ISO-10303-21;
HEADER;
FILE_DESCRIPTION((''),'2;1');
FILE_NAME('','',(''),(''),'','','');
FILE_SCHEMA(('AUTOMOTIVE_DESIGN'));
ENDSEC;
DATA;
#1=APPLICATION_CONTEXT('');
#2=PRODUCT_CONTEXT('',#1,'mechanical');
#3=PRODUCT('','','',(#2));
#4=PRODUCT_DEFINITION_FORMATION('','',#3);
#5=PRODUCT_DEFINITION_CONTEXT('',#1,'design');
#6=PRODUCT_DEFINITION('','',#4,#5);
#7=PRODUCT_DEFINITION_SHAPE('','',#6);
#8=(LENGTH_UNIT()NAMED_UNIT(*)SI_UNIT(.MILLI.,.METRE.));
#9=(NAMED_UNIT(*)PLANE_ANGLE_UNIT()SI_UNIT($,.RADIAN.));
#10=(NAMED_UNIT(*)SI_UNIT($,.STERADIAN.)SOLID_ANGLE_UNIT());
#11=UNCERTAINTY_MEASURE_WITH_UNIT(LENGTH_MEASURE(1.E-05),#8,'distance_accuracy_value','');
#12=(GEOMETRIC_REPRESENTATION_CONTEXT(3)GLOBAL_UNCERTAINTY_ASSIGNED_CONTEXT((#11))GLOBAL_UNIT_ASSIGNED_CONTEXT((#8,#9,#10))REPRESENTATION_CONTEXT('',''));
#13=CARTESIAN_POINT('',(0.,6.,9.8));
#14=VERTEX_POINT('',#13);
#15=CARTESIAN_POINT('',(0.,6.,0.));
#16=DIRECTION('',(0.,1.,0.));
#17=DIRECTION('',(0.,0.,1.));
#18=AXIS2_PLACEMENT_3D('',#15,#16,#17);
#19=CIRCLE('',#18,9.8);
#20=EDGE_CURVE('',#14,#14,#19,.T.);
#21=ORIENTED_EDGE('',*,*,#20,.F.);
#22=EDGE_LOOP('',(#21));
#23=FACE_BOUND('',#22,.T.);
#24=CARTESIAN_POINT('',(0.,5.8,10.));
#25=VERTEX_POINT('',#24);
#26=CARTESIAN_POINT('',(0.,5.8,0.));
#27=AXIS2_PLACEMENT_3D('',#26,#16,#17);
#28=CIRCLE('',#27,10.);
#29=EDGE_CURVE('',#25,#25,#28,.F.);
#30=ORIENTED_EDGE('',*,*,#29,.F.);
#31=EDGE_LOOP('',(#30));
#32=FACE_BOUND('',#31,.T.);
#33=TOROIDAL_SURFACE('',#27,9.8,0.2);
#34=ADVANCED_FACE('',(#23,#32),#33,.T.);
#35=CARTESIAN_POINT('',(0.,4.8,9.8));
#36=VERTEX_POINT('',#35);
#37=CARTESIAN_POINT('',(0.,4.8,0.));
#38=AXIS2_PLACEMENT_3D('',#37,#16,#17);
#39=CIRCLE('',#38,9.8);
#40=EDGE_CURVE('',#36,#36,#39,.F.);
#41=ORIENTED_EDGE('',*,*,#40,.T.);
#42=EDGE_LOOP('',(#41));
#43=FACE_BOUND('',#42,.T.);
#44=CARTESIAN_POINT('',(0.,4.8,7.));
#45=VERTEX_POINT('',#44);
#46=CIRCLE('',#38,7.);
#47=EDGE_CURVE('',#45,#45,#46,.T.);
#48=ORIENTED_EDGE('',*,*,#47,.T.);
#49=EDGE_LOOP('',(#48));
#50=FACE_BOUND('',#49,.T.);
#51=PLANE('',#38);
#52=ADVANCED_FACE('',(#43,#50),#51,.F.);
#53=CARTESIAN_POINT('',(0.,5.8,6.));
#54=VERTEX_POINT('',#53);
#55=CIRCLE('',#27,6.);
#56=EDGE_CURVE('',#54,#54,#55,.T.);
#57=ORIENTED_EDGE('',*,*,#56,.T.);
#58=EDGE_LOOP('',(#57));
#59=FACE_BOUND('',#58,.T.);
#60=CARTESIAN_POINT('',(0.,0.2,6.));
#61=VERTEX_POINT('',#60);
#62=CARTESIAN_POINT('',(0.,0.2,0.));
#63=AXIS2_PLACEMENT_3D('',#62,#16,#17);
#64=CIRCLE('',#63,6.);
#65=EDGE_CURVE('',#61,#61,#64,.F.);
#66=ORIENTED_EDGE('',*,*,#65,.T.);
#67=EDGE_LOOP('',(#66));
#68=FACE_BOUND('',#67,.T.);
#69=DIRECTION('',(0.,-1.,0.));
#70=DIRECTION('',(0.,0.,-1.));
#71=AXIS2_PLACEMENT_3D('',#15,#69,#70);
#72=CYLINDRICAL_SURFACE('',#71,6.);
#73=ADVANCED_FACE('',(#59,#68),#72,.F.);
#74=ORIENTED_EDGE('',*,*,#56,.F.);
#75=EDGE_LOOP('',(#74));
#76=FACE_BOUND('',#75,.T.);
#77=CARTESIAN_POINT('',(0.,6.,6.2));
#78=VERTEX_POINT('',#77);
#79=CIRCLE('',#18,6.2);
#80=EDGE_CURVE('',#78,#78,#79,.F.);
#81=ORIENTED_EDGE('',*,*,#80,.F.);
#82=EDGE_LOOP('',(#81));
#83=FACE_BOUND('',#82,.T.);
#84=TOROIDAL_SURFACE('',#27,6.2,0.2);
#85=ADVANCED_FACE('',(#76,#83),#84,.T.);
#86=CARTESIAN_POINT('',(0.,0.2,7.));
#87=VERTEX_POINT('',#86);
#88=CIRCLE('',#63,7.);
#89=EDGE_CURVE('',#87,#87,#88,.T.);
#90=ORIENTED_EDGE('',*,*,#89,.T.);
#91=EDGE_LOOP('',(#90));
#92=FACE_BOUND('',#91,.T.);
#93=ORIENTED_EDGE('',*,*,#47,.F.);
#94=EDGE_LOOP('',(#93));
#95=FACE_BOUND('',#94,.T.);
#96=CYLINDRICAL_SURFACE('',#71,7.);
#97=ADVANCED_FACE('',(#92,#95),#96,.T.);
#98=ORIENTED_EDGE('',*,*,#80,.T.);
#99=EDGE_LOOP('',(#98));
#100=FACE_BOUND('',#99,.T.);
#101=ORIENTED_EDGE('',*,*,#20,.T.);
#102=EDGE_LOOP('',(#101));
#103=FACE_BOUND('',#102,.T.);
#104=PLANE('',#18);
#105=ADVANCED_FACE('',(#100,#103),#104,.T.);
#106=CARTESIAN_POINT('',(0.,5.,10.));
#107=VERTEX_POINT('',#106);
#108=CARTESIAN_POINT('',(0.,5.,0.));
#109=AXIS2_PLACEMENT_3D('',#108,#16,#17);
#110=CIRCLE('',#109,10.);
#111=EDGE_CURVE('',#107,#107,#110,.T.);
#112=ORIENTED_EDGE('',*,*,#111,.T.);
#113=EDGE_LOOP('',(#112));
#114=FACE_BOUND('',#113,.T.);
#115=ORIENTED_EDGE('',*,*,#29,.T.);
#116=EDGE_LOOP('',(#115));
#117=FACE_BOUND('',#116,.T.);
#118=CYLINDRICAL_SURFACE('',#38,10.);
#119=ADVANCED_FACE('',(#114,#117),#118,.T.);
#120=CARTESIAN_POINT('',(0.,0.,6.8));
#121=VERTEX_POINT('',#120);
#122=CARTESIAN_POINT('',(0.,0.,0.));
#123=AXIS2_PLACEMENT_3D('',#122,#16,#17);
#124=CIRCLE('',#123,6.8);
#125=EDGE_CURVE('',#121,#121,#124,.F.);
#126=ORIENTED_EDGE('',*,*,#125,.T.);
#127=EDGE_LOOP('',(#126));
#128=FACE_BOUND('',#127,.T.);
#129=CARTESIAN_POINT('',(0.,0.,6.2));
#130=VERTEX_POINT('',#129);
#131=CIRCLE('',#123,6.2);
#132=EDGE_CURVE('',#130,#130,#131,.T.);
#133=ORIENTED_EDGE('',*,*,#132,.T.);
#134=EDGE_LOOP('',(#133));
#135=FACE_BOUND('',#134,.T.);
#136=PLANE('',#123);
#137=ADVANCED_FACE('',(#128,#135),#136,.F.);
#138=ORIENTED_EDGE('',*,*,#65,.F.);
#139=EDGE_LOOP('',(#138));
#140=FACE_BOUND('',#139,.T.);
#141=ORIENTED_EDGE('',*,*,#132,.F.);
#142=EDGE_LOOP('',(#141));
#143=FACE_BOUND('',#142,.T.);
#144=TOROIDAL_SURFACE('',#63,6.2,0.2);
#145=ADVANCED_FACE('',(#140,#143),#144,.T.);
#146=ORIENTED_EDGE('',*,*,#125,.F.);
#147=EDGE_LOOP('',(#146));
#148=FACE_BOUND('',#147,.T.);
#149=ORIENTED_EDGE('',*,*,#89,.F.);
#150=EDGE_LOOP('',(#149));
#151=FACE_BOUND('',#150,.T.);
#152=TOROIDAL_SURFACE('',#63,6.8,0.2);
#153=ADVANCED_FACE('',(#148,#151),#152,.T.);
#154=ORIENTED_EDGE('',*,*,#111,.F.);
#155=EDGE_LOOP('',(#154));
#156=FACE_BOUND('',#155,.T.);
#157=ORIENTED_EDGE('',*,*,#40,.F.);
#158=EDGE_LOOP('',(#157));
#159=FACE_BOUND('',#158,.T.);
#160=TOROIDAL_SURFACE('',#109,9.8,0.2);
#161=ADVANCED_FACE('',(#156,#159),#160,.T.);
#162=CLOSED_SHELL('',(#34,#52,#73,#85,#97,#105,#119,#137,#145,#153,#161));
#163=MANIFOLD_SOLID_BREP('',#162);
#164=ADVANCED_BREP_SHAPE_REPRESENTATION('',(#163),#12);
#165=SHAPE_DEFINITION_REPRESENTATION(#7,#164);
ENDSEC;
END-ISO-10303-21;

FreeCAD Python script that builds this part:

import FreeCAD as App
import Part
import Sketcher

V = App.Vector


def edges_at(feature, points):
    """Names of the edges that pass closest to the given points."""
    edges = feature.Shape.Edges
    near = lambda p: min(range(len(edges)), key=lambda i: edges[i].distToShape(Part.Vertex(*p))[0])
    return sorted({f"Edge{near(p) + 1}" for p in points})

doc = App.newDocument("Part")
params = doc.addObject("Spreadsheet::Sheet", "Params")
for row, (alias, value) in enumerate([
    ("sketch1_diameter", "14 mm"),
    ("sketch1_diameter2", "12 mm"),
    ("pad1_length", "6 mm"),
    ("sketch2_diameter", "20 mm"),
    ("sketch2_diameter2", "12 mm"),
    ("pad2_length", "1.2 mm"),
    ("fillet_radius", "0.2 mm"),
], start=1):
    params.set(f"A{row}", alias)
    params.set(f"B{row}", "=" + value)
    params.setAlias(f"B{row}", alias)

body = doc.addObject("PartDesign::Body", "Body")

# Sketch on XZ plane
sketch1 = body.newObject("Sketcher::SketchObject", "Sketch")
sketch1.AttachmentSupport = (doc.getObject("XZ_Plane"), [""])
sketch1.MapMode = "FlatFace"
sketch1.addGeometry([
    Part.Circle(V(0, 0, 0), V(0, 0, 1), 7),
    Part.Circle(V(0, 0, 0), V(0, 0, 1), 6),
], False)
sketch1.addConstraint([
    Sketcher.Constraint("Coincident", 0, 3, -1, 1),
    Sketcher.Constraint("Coincident", 1, 3, -1, 1),
    Sketcher.Constraint("Diameter", 0, 14.0),
    Sketcher.Constraint("Diameter", 1, 12.0),
])
sketch1.setExpression("Constraints[2]", "Params.sketch1_diameter")
sketch1.setExpression("Constraints[3]", "Params.sketch1_diameter2")
pad1 = body.newObject("PartDesign::Pad", "Pad")
pad1.Profile = sketch1
pad1.setExpression("Length", "Params.pad1_length")
pad1.Reversed = True

# Sketch on XZ plane
sketch2 = body.newObject("Sketcher::SketchObject", "Sketch001")
sketch2.AttachmentSupport = (doc.getObject("XZ_Plane"), [""])
sketch2.MapMode = "FlatFace"
sketch2.AttachmentOffset = App.Placement(V(0, 0, -4.8), App.Rotation())
sketch2.addGeometry([
    Part.Circle(V(0, 0, 0), V(0, 0, 1), 10),
    Part.Circle(V(0, 0, 0), V(0, 0, 1), 6),
], False)
sketch2.addConstraint([
    Sketcher.Constraint("Coincident", 0, 3, -1, 1),
    Sketcher.Constraint("Coincident", 1, 3, -1, 1),
    Sketcher.Constraint("Diameter", 0, 20.0),
    Sketcher.Constraint("Diameter", 1, 12.0),
])
sketch2.setExpression("Constraints[2]", "Params.sketch2_diameter")
sketch2.setExpression("Constraints[3]", "Params.sketch2_diameter2")
pad2 = body.newObject("PartDesign::Pad", "Pad001")
pad2.Profile = sketch2
pad2.setExpression("Length", "Params.pad2_length")
pad2.Reversed = True
doc.recompute()

fillet = body.newObject("PartDesign::Fillet", "Fillet")
fillet.Base = (pad2, edges_at(pad2, [
    (0, 6, -10),
    (0, 4.8, -10),
    (0, 0, -7),
    (0, 0, -6),
    (0, 6, -6),
]))
fillet.setExpression("Radius", "Params.fillet_radius")

doc.recompute()
